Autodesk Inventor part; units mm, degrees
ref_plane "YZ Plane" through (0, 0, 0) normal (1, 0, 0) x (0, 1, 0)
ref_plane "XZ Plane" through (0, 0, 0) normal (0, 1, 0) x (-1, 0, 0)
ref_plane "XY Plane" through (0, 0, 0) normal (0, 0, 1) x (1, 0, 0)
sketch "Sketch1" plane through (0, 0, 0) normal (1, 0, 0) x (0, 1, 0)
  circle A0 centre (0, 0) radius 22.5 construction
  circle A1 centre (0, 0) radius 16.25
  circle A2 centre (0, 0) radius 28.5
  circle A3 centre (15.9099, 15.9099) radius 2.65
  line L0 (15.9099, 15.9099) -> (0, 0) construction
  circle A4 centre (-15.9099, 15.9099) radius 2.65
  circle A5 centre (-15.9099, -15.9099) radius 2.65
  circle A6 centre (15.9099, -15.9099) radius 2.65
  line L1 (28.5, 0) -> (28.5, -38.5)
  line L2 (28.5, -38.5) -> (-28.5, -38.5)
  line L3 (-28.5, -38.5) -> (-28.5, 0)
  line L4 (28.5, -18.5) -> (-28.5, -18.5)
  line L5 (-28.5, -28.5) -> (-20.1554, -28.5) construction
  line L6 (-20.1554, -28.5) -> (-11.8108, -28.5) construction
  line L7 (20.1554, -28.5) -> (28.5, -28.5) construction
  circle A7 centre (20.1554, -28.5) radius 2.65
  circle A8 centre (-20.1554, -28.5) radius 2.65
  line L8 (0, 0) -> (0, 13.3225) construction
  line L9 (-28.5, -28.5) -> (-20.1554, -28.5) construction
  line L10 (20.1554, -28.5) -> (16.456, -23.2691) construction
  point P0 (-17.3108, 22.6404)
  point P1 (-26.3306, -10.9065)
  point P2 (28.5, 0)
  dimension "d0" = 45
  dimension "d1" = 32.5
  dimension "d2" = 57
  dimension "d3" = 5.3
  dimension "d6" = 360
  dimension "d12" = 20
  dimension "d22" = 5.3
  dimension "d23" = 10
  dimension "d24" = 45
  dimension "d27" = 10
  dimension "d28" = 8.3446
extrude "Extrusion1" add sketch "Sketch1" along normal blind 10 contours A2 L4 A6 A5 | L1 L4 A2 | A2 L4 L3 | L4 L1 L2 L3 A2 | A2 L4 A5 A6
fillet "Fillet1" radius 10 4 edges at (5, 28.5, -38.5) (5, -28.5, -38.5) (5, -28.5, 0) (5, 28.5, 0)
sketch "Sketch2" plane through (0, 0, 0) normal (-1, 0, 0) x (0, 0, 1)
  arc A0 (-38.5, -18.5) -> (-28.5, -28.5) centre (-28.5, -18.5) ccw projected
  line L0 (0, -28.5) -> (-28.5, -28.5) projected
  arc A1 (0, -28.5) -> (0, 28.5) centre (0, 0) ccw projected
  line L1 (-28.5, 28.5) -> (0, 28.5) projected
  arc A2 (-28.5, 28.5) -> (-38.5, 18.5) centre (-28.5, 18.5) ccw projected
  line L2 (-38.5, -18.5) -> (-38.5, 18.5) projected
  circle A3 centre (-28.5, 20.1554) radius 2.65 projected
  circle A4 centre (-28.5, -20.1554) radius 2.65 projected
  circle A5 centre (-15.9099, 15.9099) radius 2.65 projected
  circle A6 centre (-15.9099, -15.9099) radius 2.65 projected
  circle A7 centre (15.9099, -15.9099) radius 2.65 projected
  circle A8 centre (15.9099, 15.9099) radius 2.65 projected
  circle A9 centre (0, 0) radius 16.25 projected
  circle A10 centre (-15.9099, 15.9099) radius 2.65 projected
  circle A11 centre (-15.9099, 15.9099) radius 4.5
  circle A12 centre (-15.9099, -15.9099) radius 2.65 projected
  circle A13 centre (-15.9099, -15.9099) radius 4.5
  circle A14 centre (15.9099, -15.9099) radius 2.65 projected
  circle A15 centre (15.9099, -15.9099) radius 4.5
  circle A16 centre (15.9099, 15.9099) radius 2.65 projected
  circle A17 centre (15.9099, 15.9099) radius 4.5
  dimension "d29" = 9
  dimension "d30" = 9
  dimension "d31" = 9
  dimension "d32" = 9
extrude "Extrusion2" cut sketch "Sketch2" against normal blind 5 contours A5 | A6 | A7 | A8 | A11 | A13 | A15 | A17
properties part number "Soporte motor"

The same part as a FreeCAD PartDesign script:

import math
import FreeCAD as App
import Part
import Sketcher

V = App.Vector


def edges_at(feature, points):
    """Names of the edges that pass closest to the given points."""
    edges = feature.Shape.Edges
    near = lambda p: min(range(len(edges)), key=lambda i: edges[i].distToShape(Part.Vertex(*p))[0])
    return sorted({f"Edge{near(p) + 1}" for p in points})

doc = App.newDocument("Part")
body = doc.addObject("PartDesign::Body", "Body")

sketch1 = doc.addObject("Sketcher::SketchObject", "Sketch")
body.addObject(sketch1)
sketch1.AttachmentSupport = (doc.YZ_Plane, [""])
sketch1.MapMode = "FlatFace"
sketch1.addGeometry([
    Part.ArcOfCircle(Part.Circle(V(0, 0, 0), V(0, 0, 1), 28.5), math.radians(0), math.radians(180)),
    Part.LineSegment(V(-28.5, 0, 0), V(-28.5, -38.5, 0)),
    Part.LineSegment(V(-28.5, -38.5, 0), V(28.5, -38.5, 0)),
    Part.LineSegment(V(28.5, -38.5, 0), V(28.5, 0, 0)),
    Part.Circle(V(15.9, -15.9, 0), V(0, 0, 1), 2.6),
    Part.Circle(V(-15.9, -15.9, 0), V(0, 0, 1), 2.6),
    Part.Circle(V(-15.9, 15.9, 0), V(0, 0, 1), 2.6),
    Part.Circle(V(0, 0, 0), V(0, 0, 1), 16.2),
    Part.Circle(V(15.9, 15.9, 0), V(0, 0, 1), 2.6),
    Part.Circle(V(20.2, -28.5, 0), V(0, 0, 1), 2.6),
    Part.Circle(V(-20.2, -28.5, 0), V(0, 0, 1), 2.6),
], False)
sketch1.addConstraint([
    Sketcher.Constraint("Tangent", 0, 2, 1, 1),
    Sketcher.Constraint("Coincident", 1, 2, 2, 1),
    Sketcher.Constraint("Coincident", 2, 2, 3, 1),
    Sketcher.Constraint("Tangent", 3, 2, 0, 1),
    Sketcher.Constraint("Vertical", 1),
    Sketcher.Constraint("Horizontal", 2),
    Sketcher.Constraint("Vertical", 3),
    Sketcher.Constraint("Coincident", 0, 3, -1, 1),
    Sketcher.Constraint("Coincident", 7, 3, -1, 1),
    Sketcher.Constraint("Equal", 4, 5),
    Sketcher.Constraint("Equal", 5, 6),
    Sketcher.Constraint("Equal", 6, 8),
    Sketcher.Constraint("Equal", 8, 9),
    Sketcher.Constraint("Equal", 9, 10),
    Sketcher.Constraint("Symmetric", 4, 3, 6, 3, -1, 1),
    Sketcher.Constraint("Symmetric", 5, 3, 8, 3, -1, 1),
    Sketcher.Constraint("Symmetric", 4, 3, 5, 3, -2),
    Sketcher.Constraint("Symmetric", 9, 3, 10, 3, -2),
    Sketcher.Constraint("Diameter", 4, 5.3),
    Sketcher.Constraint("Diameter", 7, 32.5),
    Sketcher.Constraint("Radius", 0, 28.5),
    Sketcher.Constraint("DistanceY", 1, 2, 10, 3, 10.0),
    Sketcher.Constraint("DistanceY", 1, 2, 1, 1, 38.5),
    Sketcher.Constraint("DistanceX", 0, 2, 10, 3, 8.3446),
    Sketcher.Constraint("DistanceX", -1, 1, 4, 3, 15.91),
    Sketcher.Constraint("DistanceY", 4, 3, -1, 1, 15.91),
])
pad1 = doc.addObject("PartDesign::Pad", "Pad")
body.addObject(pad1)
pad1.Profile = sketch1
pad1.Length = 10
doc.recompute()

fillet = doc.addObject("PartDesign::Fillet", "Fillet")
body.addObject(fillet)
fillet.Base = (pad1, edges_at(pad1, [
    (5, 28.5, -38.5),
    (5, -28.5, -38.5),
    (5, -28.5, 0),
    (5, 28.5, 0),
]))
fillet.Radius = 10

sketch2 = doc.addObject("Sketcher::SketchObject", "Sketch001")
body.addObject(sketch2)
sketch2.AttachmentSupport = (doc.YZ_Plane, [""])
sketch2.MapMode = "FlatFace"
sketch2.addGeometry([
    Part.Circle(V(15.9, -15.9, 0), V(0, 0, 1), 4.5),
    Part.Circle(V(-15.9, -15.9, 0), V(0, 0, 1), 4.5),
    Part.Circle(V(-15.9, 15.9, 0), V(0, 0, 1), 4.5),
    Part.Circle(V(15.9, 15.9, 0), V(0, 0, 1), 4.5),
], False)
sketch2.addConstraint([
    Sketcher.Constraint("Equal", 0, 1),
    Sketcher.Constraint("Equal", 1, 2),
    Sketcher.Constraint("Equal", 2, 3),
    Sketcher.Constraint("Symmetric", 0, 3, 2, 3, -1, 1),
    Sketcher.Constraint("Symmetric", 1, 3, 3, 3, -1, 1),
    Sketcher.Constraint("Symmetric", 0, 3, 1, 3, -2),
    Sketcher.Constraint("Diameter", 0, 9.0),
    Sketcher.Constraint("DistanceX", -1, 1, 0, 3, 15.91),
    Sketcher.Constraint("DistanceY", 0, 3, -1, 1, 15.91),
])
pocket1 = doc.addObject("PartDesign::Pocket", "Pocket")
body.addObject(pocket1)
pocket1.Profile = sketch2
pocket1.Length = 5
pocket1.Reversed = True

doc.recompute()
